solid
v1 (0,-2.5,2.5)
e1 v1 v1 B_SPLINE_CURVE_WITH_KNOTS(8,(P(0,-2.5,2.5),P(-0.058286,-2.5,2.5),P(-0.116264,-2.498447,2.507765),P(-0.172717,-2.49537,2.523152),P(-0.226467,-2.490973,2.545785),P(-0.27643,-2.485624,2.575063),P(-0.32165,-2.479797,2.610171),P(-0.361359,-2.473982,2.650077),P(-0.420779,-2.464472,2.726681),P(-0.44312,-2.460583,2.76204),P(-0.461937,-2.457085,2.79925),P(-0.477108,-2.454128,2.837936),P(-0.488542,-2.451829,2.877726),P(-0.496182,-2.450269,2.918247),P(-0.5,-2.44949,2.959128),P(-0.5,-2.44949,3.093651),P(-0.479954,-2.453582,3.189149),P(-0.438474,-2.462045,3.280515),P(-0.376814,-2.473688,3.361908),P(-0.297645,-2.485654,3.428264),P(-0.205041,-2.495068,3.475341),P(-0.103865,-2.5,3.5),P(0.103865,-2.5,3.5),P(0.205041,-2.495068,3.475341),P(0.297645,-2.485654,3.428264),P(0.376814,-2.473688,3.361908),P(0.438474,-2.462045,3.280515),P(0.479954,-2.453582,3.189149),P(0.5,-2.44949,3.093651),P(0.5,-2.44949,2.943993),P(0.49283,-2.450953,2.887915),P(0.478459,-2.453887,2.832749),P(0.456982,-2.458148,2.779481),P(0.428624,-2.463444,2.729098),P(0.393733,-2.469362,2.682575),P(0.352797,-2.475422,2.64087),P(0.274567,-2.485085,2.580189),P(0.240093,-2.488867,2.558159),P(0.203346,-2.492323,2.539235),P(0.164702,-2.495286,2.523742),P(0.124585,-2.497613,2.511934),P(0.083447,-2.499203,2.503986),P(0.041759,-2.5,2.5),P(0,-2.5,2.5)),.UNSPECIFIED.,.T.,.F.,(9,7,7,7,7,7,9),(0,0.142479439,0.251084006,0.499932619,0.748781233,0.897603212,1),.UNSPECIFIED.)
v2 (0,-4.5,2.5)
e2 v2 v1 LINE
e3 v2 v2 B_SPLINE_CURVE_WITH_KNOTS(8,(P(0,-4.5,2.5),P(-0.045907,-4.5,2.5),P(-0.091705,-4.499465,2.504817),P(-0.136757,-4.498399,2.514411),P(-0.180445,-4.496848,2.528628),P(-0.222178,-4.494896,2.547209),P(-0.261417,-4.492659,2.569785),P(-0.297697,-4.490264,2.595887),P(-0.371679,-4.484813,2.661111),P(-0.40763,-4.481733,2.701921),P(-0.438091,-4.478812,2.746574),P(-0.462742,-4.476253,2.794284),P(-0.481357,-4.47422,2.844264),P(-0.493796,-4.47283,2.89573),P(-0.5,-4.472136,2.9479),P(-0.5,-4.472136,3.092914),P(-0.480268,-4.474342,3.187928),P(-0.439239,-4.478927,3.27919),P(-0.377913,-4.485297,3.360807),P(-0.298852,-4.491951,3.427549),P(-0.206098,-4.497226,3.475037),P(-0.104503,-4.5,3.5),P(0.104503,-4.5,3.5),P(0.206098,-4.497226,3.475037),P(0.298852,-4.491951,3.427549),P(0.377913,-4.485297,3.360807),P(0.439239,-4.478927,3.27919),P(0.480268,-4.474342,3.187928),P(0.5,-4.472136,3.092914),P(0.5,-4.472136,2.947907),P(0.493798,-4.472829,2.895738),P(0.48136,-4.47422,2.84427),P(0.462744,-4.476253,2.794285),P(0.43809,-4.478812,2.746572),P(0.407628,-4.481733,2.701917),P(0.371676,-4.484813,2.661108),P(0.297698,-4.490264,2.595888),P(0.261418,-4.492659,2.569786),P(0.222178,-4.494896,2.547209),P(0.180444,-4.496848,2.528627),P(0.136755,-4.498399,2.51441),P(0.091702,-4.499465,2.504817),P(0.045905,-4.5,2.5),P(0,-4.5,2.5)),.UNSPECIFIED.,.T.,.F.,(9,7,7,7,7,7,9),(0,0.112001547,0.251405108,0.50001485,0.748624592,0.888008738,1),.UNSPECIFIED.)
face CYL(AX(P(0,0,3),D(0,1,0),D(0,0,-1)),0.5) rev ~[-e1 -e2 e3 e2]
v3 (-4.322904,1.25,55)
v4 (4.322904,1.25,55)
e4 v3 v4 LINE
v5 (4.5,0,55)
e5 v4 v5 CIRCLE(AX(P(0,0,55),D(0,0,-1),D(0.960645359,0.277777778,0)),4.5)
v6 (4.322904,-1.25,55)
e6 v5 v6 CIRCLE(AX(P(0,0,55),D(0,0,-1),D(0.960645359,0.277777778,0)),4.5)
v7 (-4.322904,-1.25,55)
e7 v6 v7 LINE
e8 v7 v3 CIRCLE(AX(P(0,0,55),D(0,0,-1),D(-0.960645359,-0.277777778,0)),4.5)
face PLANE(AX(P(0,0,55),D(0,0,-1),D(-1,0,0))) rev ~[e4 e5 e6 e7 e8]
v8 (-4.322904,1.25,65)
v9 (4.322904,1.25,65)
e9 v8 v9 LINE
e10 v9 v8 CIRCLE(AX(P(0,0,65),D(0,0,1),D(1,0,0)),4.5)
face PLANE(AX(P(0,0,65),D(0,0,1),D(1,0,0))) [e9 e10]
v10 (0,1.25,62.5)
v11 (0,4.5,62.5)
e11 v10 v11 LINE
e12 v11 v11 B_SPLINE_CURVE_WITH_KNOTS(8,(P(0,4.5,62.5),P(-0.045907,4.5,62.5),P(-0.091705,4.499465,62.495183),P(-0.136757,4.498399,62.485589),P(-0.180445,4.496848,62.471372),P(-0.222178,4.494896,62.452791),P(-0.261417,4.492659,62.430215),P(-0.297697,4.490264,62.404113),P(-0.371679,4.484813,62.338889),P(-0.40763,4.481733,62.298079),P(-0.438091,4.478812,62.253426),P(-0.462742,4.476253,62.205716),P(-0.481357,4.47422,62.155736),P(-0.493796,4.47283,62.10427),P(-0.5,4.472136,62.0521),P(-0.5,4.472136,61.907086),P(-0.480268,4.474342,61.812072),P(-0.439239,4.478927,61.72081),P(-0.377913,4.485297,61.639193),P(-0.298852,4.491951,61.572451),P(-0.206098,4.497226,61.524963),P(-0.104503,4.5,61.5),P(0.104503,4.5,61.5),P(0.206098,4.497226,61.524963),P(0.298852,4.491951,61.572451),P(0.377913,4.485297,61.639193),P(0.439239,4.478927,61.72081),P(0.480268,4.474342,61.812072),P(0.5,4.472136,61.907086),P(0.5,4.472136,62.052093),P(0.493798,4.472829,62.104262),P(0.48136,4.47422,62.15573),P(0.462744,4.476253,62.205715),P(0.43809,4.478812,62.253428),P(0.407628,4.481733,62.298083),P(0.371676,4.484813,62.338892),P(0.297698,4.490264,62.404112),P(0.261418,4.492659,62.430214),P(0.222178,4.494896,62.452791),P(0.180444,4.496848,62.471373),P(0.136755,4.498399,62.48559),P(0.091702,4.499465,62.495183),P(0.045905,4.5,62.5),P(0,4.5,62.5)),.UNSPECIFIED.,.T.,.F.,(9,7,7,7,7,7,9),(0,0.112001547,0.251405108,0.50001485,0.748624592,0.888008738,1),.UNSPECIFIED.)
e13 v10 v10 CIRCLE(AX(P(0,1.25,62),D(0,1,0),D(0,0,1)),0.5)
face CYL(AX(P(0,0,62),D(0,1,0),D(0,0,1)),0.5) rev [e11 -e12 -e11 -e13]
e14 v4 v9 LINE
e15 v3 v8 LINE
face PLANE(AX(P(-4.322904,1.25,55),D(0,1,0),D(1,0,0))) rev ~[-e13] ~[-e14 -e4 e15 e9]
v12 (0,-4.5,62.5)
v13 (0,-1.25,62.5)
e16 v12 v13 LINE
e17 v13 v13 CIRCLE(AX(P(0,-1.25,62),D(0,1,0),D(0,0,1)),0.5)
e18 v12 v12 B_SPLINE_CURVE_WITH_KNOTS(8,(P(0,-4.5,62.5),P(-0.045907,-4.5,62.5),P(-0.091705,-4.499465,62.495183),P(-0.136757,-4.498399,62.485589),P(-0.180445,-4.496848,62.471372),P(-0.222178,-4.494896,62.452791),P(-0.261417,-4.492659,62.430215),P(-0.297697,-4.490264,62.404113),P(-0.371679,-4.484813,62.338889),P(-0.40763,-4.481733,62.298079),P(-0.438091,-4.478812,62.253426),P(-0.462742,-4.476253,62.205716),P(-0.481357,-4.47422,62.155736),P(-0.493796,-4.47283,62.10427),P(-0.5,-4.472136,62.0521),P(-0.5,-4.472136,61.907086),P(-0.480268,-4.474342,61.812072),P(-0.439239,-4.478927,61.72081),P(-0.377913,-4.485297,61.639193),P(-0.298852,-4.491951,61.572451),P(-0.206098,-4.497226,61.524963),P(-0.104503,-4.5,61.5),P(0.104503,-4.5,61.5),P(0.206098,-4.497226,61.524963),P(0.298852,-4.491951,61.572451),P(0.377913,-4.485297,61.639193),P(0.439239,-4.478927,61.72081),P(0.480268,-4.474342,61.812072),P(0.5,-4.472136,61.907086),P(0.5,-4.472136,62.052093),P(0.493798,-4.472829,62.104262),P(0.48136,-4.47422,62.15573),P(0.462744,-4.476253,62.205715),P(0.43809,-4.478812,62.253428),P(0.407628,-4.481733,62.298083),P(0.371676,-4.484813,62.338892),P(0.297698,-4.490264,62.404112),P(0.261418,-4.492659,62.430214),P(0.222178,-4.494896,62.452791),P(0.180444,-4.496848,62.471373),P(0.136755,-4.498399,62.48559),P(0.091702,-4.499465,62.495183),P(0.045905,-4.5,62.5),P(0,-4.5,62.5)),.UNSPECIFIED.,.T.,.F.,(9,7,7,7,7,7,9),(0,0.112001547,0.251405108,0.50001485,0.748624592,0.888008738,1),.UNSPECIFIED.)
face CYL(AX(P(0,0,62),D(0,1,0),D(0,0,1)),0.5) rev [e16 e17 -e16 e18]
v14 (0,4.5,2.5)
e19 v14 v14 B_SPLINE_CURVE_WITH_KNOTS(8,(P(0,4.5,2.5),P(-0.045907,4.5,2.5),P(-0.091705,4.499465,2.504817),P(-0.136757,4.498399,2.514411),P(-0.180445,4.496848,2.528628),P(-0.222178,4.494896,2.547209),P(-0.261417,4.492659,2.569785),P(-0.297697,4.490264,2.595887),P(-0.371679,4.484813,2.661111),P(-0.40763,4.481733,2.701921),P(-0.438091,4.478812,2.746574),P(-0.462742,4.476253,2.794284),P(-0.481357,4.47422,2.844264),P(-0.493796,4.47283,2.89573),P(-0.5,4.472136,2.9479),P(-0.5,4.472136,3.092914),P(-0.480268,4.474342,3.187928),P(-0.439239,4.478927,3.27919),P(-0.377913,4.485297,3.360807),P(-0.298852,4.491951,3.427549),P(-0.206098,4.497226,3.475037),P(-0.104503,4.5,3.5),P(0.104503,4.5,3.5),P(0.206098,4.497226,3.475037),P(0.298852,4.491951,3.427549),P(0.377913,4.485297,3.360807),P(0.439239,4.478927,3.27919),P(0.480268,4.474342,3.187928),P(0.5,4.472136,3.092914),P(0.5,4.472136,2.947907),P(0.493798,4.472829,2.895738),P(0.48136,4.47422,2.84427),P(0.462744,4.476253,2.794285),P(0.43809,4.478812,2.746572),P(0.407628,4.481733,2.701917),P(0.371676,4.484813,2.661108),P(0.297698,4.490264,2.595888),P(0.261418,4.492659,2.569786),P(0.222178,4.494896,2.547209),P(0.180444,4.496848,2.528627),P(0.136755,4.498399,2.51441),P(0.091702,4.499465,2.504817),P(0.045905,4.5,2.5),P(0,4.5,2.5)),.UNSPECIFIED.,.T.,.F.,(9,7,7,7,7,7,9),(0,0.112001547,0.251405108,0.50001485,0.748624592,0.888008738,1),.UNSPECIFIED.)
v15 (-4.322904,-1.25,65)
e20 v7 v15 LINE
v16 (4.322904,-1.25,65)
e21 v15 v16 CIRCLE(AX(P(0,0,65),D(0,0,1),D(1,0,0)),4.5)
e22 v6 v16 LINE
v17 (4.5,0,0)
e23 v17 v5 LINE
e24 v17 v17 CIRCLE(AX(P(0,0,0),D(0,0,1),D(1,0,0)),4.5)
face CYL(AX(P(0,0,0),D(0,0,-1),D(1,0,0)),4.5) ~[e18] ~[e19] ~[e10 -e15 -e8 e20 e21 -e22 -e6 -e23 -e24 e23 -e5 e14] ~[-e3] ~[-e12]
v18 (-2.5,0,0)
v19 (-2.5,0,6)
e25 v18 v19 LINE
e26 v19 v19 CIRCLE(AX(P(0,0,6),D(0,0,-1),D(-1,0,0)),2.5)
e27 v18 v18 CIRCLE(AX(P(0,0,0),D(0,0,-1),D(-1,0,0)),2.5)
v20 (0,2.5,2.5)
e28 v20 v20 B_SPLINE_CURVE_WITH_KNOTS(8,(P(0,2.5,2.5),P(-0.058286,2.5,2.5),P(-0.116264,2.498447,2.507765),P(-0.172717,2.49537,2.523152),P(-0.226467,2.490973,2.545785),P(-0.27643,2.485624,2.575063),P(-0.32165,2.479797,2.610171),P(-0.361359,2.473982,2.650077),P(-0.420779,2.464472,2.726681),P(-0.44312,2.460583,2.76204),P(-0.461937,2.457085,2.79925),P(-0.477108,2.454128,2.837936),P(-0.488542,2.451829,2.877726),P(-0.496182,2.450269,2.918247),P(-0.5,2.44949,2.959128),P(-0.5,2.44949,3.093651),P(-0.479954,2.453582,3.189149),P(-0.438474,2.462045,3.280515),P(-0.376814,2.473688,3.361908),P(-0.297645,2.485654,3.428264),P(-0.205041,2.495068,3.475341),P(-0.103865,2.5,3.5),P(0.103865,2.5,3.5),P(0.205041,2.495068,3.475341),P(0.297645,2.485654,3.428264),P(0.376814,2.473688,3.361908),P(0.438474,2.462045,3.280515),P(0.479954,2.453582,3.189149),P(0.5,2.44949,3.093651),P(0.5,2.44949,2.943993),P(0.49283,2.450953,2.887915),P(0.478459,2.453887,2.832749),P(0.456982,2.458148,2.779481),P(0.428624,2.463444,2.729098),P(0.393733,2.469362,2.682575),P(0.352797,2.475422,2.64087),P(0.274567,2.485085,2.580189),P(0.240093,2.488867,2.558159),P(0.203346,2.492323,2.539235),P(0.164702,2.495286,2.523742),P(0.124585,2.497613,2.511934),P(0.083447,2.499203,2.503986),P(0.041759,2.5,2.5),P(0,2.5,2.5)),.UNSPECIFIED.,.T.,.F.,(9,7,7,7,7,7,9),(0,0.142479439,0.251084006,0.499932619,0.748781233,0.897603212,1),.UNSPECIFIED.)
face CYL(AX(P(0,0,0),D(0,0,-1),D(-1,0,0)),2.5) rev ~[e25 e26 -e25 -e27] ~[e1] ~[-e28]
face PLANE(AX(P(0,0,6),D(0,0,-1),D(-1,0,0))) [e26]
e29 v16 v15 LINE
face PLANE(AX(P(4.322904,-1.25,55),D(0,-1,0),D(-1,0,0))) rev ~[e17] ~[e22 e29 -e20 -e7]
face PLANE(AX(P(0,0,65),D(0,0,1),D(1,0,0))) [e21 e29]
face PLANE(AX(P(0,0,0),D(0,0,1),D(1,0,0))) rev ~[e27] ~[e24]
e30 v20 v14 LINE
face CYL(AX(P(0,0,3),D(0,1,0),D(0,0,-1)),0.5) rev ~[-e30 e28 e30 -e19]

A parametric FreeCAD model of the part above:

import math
import FreeCAD as App
import Part
import Sketcher

doc = App.newDocument("Part")
body = doc.addObject("PartDesign::Body", "Body")

# Sketch on XY plane
sketch1 = doc.addObject("Sketcher::SketchObject", "Sketch")
body.addObject(sketch1)
sketch1.AttachmentSupport = (doc.XY_Plane, [""])
sketch1.MapMode = "FlatFace"
sketch1.addGeometry(Part.Circle(App.Vector(0, 0, 0), App.Vector(0, 0, 1), 4.5), False)
sketch1.addConstraint([
    Sketcher.Constraint("Coincident", 0, 3, -1, 1),
    Sketcher.Constraint("Diameter", 0, 9.0),
])
pad1 = doc.addObject("PartDesign::Pad", "Pad")
body.addObject(pad1)
pad1.Profile = sketch1
pad1.Length = 65

# Sketch on XY plane
sketch2 = doc.addObject("Sketcher::SketchObject", "Sketch001")
body.addObject(sketch2)
sketch2.AttachmentSupport = (doc.XY_Plane, [""])
sketch2.MapMode = "FlatFace"
sketch2.AttachmentOffset = App.Placement(App.Vector(0, 0, 55), App.Rotation())
sketch2.addGeometry([
    Part.LineSegment(App.Vector(4.322904, 1.25, 0), App.Vector(-4.322904, 1.25, 0)),
    Part.ArcOfCircle(Part.Circle(App.Vector(0, 0, 0), App.Vector(0, 0, 1), 4.5), math.radians(163.87238), math.radians(196.12762)),
    Part.LineSegment(App.Vector(-4.322904, -1.25, 0), App.Vector(4.322904, -1.25, 0)),
    Part.ArcOfCircle(Part.Circle(App.Vector(0, 0, 0), App.Vector(0, 0, 1), 4.5), math.radians(-16.12762), math.radians(16.12762)),
], False)
sketch2.addConstraint([
    Sketcher.Constraint("Coincident", 0, 2, 1, 1),
    Sketcher.Constraint("Coincident", 1, 2, 2, 1),
    Sketcher.Constraint("Coincident", 2, 2, 3, 1),
    Sketcher.Constraint("Coincident", 3, 2, 0, 1),
    Sketcher.Constraint("Horizontal", 0),
    Sketcher.Constraint("Horizontal", 2),
    Sketcher.Constraint("Coincident", 1, 3, -1, 1),
    Sketcher.Constraint("Coincident", 3, 3, -1, 1),
    Sketcher.Constraint("Equal", 1, 3),
    Sketcher.Constraint("Vertical", 0, 2, 1, 2),
    Sketcher.Constraint("Radius", 1, 4.5),
    Sketcher.Constraint("DistanceY", 1, 2, 0, 2, 2.5),
])
pocket1 = doc.addObject("PartDesign::Pocket", "Pocket")
body.addObject(pocket1)
pocket1.Profile = sketch2
pocket1.Length = 10
pocket1.Reversed = True

# Sketch on XY plane
sketch3 = doc.addObject("Sketcher::SketchObject", "Sketch002")
body.addObject(sketch3)
sketch3.AttachmentSupport = (doc.XY_Plane, [""])
sketch3.MapMode = "FlatFace"
sketch3.addGeometry(Part.Circle(App.Vector(0, 0, 0), App.Vector(0, 0, 1), 2.5), False)
sketch3.addConstraint([
    Sketcher.Constraint("Coincident", 0, 3, -1, 1),
    Sketcher.Constraint("Diameter", 0, 5.0),
])
pocket2 = doc.addObject("PartDesign::Pocket", "Pocket001")
body.addObject(pocket2)
pocket2.Profile = sketch3
pocket2.Length = 6
pocket2.Reversed = True

# Sketch on XZ plane
sketch4 = doc.addObject("Sketcher::SketchObject", "Sketch003")
body.addObject(sketch4)
sketch4.AttachmentSupport = (doc.XZ_Plane, [""])
sketch4.MapMode = "FlatFace"
sketch4.addGeometry(Part.Circle(App.Vector(0, 3, 0), App.Vector(0, 0, 1), 0.5), False)
sketch4.addConstraint([
    Sketcher.Constraint("PointOnObject", 0, 3, -2),
    Sketcher.Constraint("Diameter", 0, 1.0),
    Sketcher.Constraint("DistanceY", -1, 1, 0, 3, 3.0),
])
pocket3 = doc.addObject("PartDesign::Pocket", "Pocket002")
body.addObject(pocket3)
pocket3.Profile = sketch4
pocket3.Length = 132.621591
pocket3.Midplane = True
doc.recompute()

datumplane = doc.addObject("PartDesign::Plane", "DatumPlane")
body.addObject(datumplane)
datumplane.AttachmentSupport = (doc.XY_Plane, [""])
datumplane.MapMode = "FlatFace"
datumplane.AttachmentOffset = App.Placement(App.Vector(0, 0, 32.5), App.Rotation())
mirrored = doc.addObject("PartDesign::Mirrored", "Mirrored")
body.addObject(mirrored)
mirrored.Originals = [pocket3]
mirrored.MirrorPlane = (datumplane, [""])
body.Tip = mirrored

doc.recompute()
